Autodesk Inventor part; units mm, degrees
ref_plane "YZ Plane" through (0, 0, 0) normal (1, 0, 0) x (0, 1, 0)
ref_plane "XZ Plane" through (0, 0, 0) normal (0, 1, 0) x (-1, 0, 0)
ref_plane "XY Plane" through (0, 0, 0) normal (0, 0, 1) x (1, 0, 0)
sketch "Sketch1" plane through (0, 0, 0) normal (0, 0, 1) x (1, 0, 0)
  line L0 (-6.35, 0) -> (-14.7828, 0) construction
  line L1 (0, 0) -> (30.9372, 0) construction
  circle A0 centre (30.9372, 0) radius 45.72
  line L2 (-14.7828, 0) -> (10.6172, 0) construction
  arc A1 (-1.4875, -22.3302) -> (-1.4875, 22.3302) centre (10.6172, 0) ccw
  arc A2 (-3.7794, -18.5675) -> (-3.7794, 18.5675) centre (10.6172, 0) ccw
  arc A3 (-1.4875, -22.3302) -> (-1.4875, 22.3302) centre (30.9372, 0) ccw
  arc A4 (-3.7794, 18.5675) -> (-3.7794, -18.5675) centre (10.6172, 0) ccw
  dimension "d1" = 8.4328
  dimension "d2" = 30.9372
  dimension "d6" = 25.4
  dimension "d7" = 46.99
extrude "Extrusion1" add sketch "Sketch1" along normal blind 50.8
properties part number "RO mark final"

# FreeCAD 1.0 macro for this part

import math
import FreeCAD as App
import Part
import Sketcher
from FreeCAD import Vector
Q = App.Units.Quantity

doc = App.newDocument("Part")
body = doc.addObject("PartDesign::Body", "Body")

# Sketch on XY plane
sketch1 = body.newObject("Sketcher::SketchObject", "Sketch")
sketch1.AttachmentSupport = (doc.getObject("XY_Plane"), [""])
sketch1.MapMode = "FlatFace"
sketch1.addGeometry(Part.Circle(Vector(31, 0, 0), Vector(0, 0, 1), 46), False)
sketch1.addGeometry(Part.Circle(Vector(11, 0, 0), Vector(0, 0, 1), 23), False)
sketch1.addGeometry(Part.ArcOfCircle(Part.Circle(Vector(31, 0, 0), Vector(0, 0, 1), 39), math.radians(-145), math.radians(145)), False)
sketch1.addGeometry(Part.ArcOfCircle(Part.Circle(Vector(11, 0, 0), Vector(0, 0, 1), 25), math.radians(-118), math.radians(118)), False)
sketch1.addConstraint(Sketcher.Constraint("Coincident", 2, 1, 3, 1))
sketch1.addConstraint(Sketcher.Constraint("Coincident", 3, 2, 2, 2))
sketch1.addConstraint(Sketcher.Constraint("Coincident", 2, 3, 0, 3))
sketch1.addConstraint(Sketcher.Constraint("Coincident", 3, 3, 1, 3))
sketch1.addConstraint(Sketcher.Constraint("Symmetric", 2, 1, 3, 2, -1))
sketch1.addConstraint(Sketcher.Constraint("Radius", 3, Q("1 in")))
sketch1.addConstraint(Sketcher.Constraint("Diameter", 1, Q("1.85 in")))
sketch1.addConstraint(Sketcher.Constraint("Diameter", 0, Q("3.6 in")))
sketch1.addConstraint(Sketcher.Constraint("Radius", 2, Q("1.55 in")))
sketch1.addConstraint(Sketcher.Constraint("DistanceX", -1, 1, 0, 3, Q("1.218 in")))
sketch1.addConstraint(Sketcher.Constraint("DistanceX", 1, 3, 0, 3, Q("0.8 in")))
pad1 = body.newObject("PartDesign::Pad", "Pad")
pad1.Profile = sketch1
pad1.Length = Q("2 in")

doc.recompute()
